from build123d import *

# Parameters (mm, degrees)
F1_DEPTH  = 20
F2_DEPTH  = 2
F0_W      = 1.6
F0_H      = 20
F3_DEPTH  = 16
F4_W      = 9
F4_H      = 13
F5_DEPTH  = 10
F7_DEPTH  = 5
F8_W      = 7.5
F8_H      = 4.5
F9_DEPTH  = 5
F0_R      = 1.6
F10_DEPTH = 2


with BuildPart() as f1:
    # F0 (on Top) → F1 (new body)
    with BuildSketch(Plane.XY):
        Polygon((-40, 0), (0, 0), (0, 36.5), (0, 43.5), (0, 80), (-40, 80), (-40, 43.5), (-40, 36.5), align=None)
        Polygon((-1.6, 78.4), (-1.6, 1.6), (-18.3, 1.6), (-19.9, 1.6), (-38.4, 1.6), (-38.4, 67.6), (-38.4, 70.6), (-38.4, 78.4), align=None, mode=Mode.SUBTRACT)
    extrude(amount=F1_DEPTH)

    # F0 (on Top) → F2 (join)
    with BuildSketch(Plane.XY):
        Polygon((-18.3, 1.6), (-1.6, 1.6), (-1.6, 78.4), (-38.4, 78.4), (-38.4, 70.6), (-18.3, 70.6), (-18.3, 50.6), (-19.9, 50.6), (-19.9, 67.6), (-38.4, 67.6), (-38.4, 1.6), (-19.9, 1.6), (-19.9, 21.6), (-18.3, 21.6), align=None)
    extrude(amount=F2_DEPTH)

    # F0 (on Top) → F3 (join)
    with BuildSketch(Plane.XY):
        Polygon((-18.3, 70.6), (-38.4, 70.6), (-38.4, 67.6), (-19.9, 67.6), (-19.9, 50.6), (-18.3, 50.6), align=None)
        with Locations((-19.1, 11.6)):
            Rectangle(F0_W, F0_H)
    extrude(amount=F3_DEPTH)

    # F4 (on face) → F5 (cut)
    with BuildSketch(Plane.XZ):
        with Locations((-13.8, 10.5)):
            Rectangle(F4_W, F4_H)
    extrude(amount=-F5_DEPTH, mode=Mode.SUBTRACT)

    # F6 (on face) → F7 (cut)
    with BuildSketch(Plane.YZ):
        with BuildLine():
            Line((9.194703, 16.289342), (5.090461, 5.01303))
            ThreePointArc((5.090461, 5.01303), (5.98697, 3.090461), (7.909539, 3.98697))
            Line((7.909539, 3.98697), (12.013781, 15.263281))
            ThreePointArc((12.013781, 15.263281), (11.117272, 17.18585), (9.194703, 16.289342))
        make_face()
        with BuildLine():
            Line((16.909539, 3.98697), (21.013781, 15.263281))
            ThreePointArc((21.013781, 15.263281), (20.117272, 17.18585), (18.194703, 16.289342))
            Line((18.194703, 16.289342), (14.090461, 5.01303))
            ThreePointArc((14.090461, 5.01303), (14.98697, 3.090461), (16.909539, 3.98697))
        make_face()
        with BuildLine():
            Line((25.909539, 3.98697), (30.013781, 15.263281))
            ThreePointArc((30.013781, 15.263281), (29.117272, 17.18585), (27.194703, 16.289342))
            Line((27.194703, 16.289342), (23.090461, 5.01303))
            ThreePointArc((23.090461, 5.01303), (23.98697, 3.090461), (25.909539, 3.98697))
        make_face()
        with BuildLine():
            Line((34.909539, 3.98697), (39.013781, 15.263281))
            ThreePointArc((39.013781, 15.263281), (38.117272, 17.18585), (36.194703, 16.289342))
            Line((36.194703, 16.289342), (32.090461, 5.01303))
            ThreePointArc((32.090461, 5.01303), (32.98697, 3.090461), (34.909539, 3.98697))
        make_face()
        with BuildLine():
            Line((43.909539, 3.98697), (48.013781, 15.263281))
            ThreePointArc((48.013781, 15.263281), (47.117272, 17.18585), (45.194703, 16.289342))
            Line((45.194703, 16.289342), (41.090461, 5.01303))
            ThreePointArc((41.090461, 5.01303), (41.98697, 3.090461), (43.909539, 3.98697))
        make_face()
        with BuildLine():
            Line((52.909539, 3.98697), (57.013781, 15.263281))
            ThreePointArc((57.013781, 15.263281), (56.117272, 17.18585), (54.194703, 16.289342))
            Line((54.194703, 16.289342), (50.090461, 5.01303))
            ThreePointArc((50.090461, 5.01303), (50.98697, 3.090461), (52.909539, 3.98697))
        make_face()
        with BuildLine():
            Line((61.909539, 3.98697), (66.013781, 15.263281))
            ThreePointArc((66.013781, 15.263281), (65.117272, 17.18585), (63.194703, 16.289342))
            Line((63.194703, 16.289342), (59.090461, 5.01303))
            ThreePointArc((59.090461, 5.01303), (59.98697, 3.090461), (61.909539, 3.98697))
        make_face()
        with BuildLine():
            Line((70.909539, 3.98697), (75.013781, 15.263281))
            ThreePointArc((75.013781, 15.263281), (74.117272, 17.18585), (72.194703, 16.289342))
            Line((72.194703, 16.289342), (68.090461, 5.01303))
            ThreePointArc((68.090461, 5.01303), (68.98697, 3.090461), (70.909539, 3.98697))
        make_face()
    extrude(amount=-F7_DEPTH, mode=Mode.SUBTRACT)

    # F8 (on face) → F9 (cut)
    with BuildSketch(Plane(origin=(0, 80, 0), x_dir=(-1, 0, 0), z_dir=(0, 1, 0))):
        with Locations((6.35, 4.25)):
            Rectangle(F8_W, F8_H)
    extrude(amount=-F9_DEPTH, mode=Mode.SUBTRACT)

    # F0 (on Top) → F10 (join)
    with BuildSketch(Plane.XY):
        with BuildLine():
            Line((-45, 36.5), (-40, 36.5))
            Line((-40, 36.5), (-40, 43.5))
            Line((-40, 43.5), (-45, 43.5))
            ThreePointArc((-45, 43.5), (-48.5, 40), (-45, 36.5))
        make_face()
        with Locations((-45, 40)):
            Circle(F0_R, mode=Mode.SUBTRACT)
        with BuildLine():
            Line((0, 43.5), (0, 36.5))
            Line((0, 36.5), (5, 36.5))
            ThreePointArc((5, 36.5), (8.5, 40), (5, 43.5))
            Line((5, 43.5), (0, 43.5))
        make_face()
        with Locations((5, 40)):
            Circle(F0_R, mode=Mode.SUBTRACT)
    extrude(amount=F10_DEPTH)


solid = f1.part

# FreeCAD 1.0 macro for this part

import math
import FreeCAD as App
import Part
import Sketcher
Q = App.Units.Quantity


def add_polygon(sketch, points):
    """Adds a closed chain of lines whose ends are joined by coincident constraints."""
    first, n = sketch.GeometryCount, len(points)
    for a, b in zip(points, points[1:] + points[:1]):
        sketch.addGeometry(Part.LineSegment(App.Vector(*a, 0), App.Vector(*b, 0)), False)
    for i in range(n):
        sketch.addConstraint(Sketcher.Constraint("Coincident", first + i, 2, first + (i + 1) % n, 1))

doc = App.newDocument("Part")
params = doc.addObject("Spreadsheet::Sheet", "Params")
for row, (alias, value) in enumerate([
    ("sketch1_width", "40 mm"),
    ("sketch1_height", "80 mm"),
    ("sketch1_width2", "36.8 mm"),
    ("sketch1_height2", "76.8 mm"),
    ("pad1_length", "20 mm"),
    ("sketch2_height", "20 mm"),
    ("sketch2_height2", "17 mm"),
    ("sketch2_height3", "66 mm"),
    ("sketch2_width", "16.7 mm"),
    ("sketch2_width2", "36.8 mm"),
    ("pad2_length", "2 mm"),
    ("sketch3_height", "3 mm"),
    ("sketch3_height2", "17 mm"),
    ("sketch3_width", "20.1 mm"),
    ("sketch3_width2", "18.5 mm"),
    ("pad3_length", "16 mm"),
    ("sketch4_width", "9 mm"),
    ("sketch4_height", "13 mm"),
    ("pocket1_length", "10 mm"),
    ("sketch5_radius", "1.5 mm"),
    ("sketch5_length", "12.000001 mm"),
    ("pocket2_length", "5 mm"),
    ("sketch6_width", "7.5 mm"),
    ("sketch6_height", "4.5 mm"),
    ("pocket3_length", "5 mm"),
    ("sketch7_diameter", "3.2 mm"),
    ("sketch7_radius", "3.5 mm"),
    ("sketch7_width", "5 mm"),
    ("pad4_length", "2 mm"),
], start=1):
    params.set(f"A{row}", alias)
    params.set(f"B{row}", "=" + value)
    params.setAlias(f"B{row}", alias)

body = doc.addObject("PartDesign::Body", "Body")

# Sketch on XY plane
sketch1 = body.newObject("Sketcher::SketchObject", "Sketch")
sketch1.AttachmentSupport = (doc.getObject("XY_Plane"), [""])
sketch1.MapMode = "FlatFace"
add_polygon(sketch1, [(-40, 0), (0, 0), (0, 80), (-40, 80)])  # lines 0-3
add_polygon(sketch1, [(-38.4, 78.4), (-1.6, 78.4), (-1.6, 1.6), (-38.4, 1.6)])  # lines 4-7
sketch1.addConstraint([
    Sketcher.Constraint("Horizontal", 0),
    Sketcher.Constraint("Vertical", 1),
    Sketcher.Constraint("Horizontal", 2),
    Sketcher.Constraint("Vertical", 3),
    Sketcher.Constraint("Horizontal", 4),
    Sketcher.Constraint("Vertical", 5),
    Sketcher.Constraint("Horizontal", 6),
    Sketcher.Constraint("Vertical", 7),
    Sketcher.Constraint("Coincident", 0, 2, -1, 1),
    Sketcher.Constraint("DistanceX", 0, 1, 0, 2, 40.0),
    Sketcher.Constraint("DistanceY", 1, 1, 1, 2, 80.0),
    Sketcher.Constraint("DistanceX", 4, 1, 4, 2, 36.8),
    Sketcher.Constraint("DistanceY", 5, 2, 5, 1, 76.8),
    Sketcher.Constraint("DistanceX", 4, 2, -1, 1, 1.6),
    Sketcher.Constraint("DistanceY", -1, 1, 4, 2, 78.4),
])
sketch1.setExpression("Constraints[17]", "Params.sketch1_width")
sketch1.setExpression("Constraints[18]", "Params.sketch1_height")
sketch1.setExpression("Constraints[19]", "Params.sketch1_width2")
sketch1.setExpression("Constraints[20]", "Params.sketch1_height2")
pad1 = body.newObject("PartDesign::Pad", "Pad")
pad1.Profile = sketch1
pad1.setExpression("Length", "Params.pad1_length")

# Sketch on XY plane
sketch2 = body.newObject("Sketcher::SketchObject", "Sketch001")
sketch2.AttachmentSupport = (doc.getObject("XY_Plane"), [""])
sketch2.MapMode = "FlatFace"
add_polygon(sketch2, [(-18.3, 1.6), (-1.6, 1.6), (-1.6, 78.4), (-38.4, 78.4), (-38.4, 70.6), (-18.3, 70.6), (-18.3, 50.6), (-19.9, 50.6), (-19.9, 67.6), (-38.4, 67.6), (-38.4, 1.6), (-19.9, 1.6), (-19.9, 21.6), (-18.3, 21.6)])  # lines 0-13
sketch2.addConstraint([
    Sketcher.Constraint("Horizontal", 0),
    Sketcher.Constraint("Vertical", 1),
    Sketcher.Constraint("Horizontal", 2),
    Sketcher.Constraint("Vertical", 3),
    Sketcher.Constraint("Horizontal", 4),
    Sketcher.Constraint("Vertical", 5),
    Sketcher.Constraint("Horizontal", 6),
    Sketcher.Constraint("Vertical", 7),
    Sketcher.Constraint("Horizontal", 8),
    Sketcher.Constraint("Vertical", 9),
    Sketcher.Constraint("Horizontal", 10),
    Sketcher.Constraint("Vertical", 11),
    Sketcher.Constraint("Horizontal", 12),
    Sketcher.Constraint("Vertical", 13),
    Sketcher.Constraint("Horizontal", 0, 2, 9, 2),
    Sketcher.Constraint("Vertical", 3, 2, 8, 2),
    Sketcher.Constraint("Vertical", 7, 2, 10, 2),
    Sketcher.Constraint("Vertical", 5, 2, 12, 2),
    Sketcher.Constraint("Equal", 5, 11),
    Sketcher.Constraint("DistanceY", 5, 2, 5, 1, 20.0),
    Sketcher.Constraint("DistanceY", 7, 1, 7, 2, 17.0),
    Sketcher.Constraint("DistanceY", 9, 2, 9, 1, 66.0),
    Sketcher.Constraint("DistanceX", 0, 1, 0, 2, 16.7),
    Sketcher.Constraint("DistanceX", 2, 2, 2, 1, 36.8),
    Sketcher.Constraint("DistanceX", 6, 2, 6, 1, 1.6),
    Sketcher.Constraint("DistanceY", 1, 1, 1, 2, 76.8),
    Sketcher.Constraint("DistanceX", 0, 2, -1, 1, 1.6),
    Sketcher.Constraint("DistanceY", -1, 1, 0, 2, 1.6),
])
sketch2.setExpression("Constraints[33]", "Params.sketch2_height")
sketch2.setExpression("Constraints[34]", "Params.sketch2_height2")
sketch2.setExpression("Constraints[35]", "Params.sketch2_height3")
sketch2.setExpression("Constraints[36]", "Params.sketch2_width")
sketch2.setExpression("Constraints[37]", "Params.sketch2_width2")
pad2 = body.newObject("PartDesign::Pad", "Pad001")
pad2.Profile = sketch2
pad2.setExpression("Length", "Params.pad2_length")

# Sketch on XY plane
sketch3 = body.newObject("Sketcher::SketchObject", "Sketch002")
sketch3.AttachmentSupport = (doc.getObject("XY_Plane"), [""])
sketch3.MapMode = "FlatFace"
add_polygon(sketch3, [(-18.3, 70.6), (-38.4, 70.6), (-38.4, 67.6), (-19.9, 67.6), (-19.9, 50.6), (-18.3, 50.6)])  # lines 0-5
add_polygon(sketch3, [(-19.9, 21.6), (-19.9, 1.6), (-18.3, 1.6), (-18.3, 21.6)])  # lines 6-9
sketch3.addConstraint([
    Sketcher.Constraint("Horizontal", 0),
    Sketcher.Constraint("Vertical", 1),
    Sketcher.Constraint("Horizontal", 2),
    Sketcher.Constraint("Vertical", 3),
    Sketcher.Constraint("Horizontal", 4),
    Sketcher.Constraint("Vertical", 5),
    Sketcher.Constraint("Vertical", 6),
    Sketcher.Constraint("Horizontal", 7),
    Sketcher.Constraint("Vertical", 8),
    Sketcher.Constraint("Horizontal", 9),
    Sketcher.Constraint("Vertical", 3, 2, 6, 2),
    Sketcher.Constraint("Vertical", 5, 2, 7, 2),
    Sketcher.Constraint("Equal", 5, 6),
    Sketcher.Constraint("DistanceY", 1, 2, 1, 1, 3.0),
    Sketcher.Constraint("DistanceY", 3, 2, 3, 1, 17.0),
    Sketcher.Constraint("DistanceX", 0, 2, 0, 1, 20.1),
    Sketcher.Constraint("DistanceX", 2, 1, 2, 2, 18.5),
    Sketcher.Constraint("DistanceY", 6, 2, 3, 2, 49.0),
    Sketcher.Constraint("DistanceX", 0, 2, -1, 1, 38.4),
    Sketcher.Constraint("DistanceY", -1, 1, 0, 2, 70.6),
])
sketch3.setExpression("Constraints[23]", "Params.sketch3_height")
sketch3.setExpression("Constraints[24]", "Params.sketch3_height2")
sketch3.setExpression("Constraints[25]", "Params.sketch3_width")
sketch3.setExpression("Constraints[26]", "Params.sketch3_width2")
pad3 = body.newObject("PartDesign::Pad", "Pad002")
pad3.Profile = sketch3
pad3.setExpression("Length", "Params.pad3_length")

# Sketch on XZ plane
sketch4 = body.newObject("Sketcher::SketchObject", "Sketch003")
sketch4.AttachmentSupport = (doc.getObject("XZ_Plane"), [""])
sketch4.MapMode = "FlatFace"
add_polygon(sketch4, [(-18.3, 17), (-18.3, 4), (-9.3, 4), (-9.3, 17)])  # lines 0-3
sketch4.addConstraint([
    Sketcher.Constraint("Vertical", 0),
    Sketcher.Constraint("Horizontal", 1),
    Sketcher.Constraint("Vertical", 2),
    Sketcher.Constraint("Horizontal", 3),
    Sketcher.Constraint("DistanceX", 1, 1, 1, 2, 9.0),
    Sketcher.Constraint("DistanceY", 0, 2, 0, 1, 13.0),
    Sketcher.Constraint("DistanceY", -1, 1, 0, 2, 4.0),
    Sketcher.Constraint("DistanceX", 0, 2, -1, 1, 18.3),
])
sketch4.setExpression("Constraints[8]", "Params.sketch4_width")
sketch4.setExpression("Constraints[9]", "Params.sketch4_height")
pocket1 = body.newObject("PartDesign::Pocket", "Pocket")
pocket1.Profile = sketch4
pocket1.setExpression("Length", "Params.pocket1_length")

# Sketch on YZ plane
sketch5 = body.newObject("Sketcher::SketchObject", "Sketch004")
sketch5.AttachmentSupport = (doc.getObject("YZ_Plane"), [""])
sketch5.MapMode = "FlatFace"
sketch5.addGeometry([
    Part.LineSegment(App.Vector(9.194703, 16.289342, 0), App.Vector(5.090461, 5.01303, 0)),  # 0
    Part.ArcOfCircle(Part.Circle(App.Vector(6.5, 4.5, 0), App.Vector(0, 0, 1), 1.5), math.radians(160.000009), math.radians(340.000009)),  # 1
    Part.LineSegment(App.Vector(7.909539, 3.98697, 0), App.Vector(12.013781, 15.263281, 0)),  # 2
    Part.ArcOfCircle(Part.Circle(App.Vector(10.604242, 15.776311, 0), App.Vector(0, 0, 1), 1.5), math.radians(-19.999985), math.radians(159.999966)),  # 3
    Part.LineSegment(App.Vector(16.909539, 3.98697, 0), App.Vector(21.013781, 15.263281, 0)),  # 4
    Part.ArcOfCircle(Part.Circle(App.Vector(19.604242, 15.776311, 0), App.Vector(0, 0, 1), 1.5), math.radians(-19.999985), math.radians(159.999966)),  # 5
    Part.LineSegment(App.Vector(18.194703, 16.289342, 0), App.Vector(14.090461, 5.01303, 0)),  # 6
    Part.ArcOfCircle(Part.Circle(App.Vector(15.5, 4.5, 0), App.Vector(0, 0, 1), 1.5), math.radians(160.000009), math.radians(340.000009)),  # 7
    Part.LineSegment(App.Vector(25.909539, 3.98697, 0), App.Vector(30.013781, 15.263281, 0)),  # 8
    Part.ArcOfCircle(Part.Circle(App.Vector(28.604242, 15.776311, 0), App.Vector(0, 0, 1), 1.5), math.radians(-19.999985), math.radians(159.999966)),  # 9
    Part.LineSegment(App.Vector(27.194703, 16.289342, 0), App.Vector(23.090461, 5.01303, 0)),  # 10
    Part.ArcOfCircle(Part.Circle(App.Vector(24.5, 4.5, 0), App.Vector(0, 0, 1), 1.5), math.radians(160.000009), math.radians(340.000009)),  # 11
    Part.LineSegment(App.Vector(34.909539, 3.98697, 0), App.Vector(39.013781, 15.263281, 0)),  # 12
    Part.ArcOfCircle(Part.Circle(App.Vector(37.604242, 15.776311, 0), App.Vector(0, 0, 1), 1.5), math.radians(-19.999985), math.radians(159.999966)),  # 13
    Part.LineSegment(App.Vector(36.194703, 16.289342, 0), App.Vector(32.090461, 5.01303, 0)),  # 14
    Part.ArcOfCircle(Part.Circle(App.Vector(33.5, 4.5, 0), App.Vector(0, 0, 1), 1.5), math.radians(160.000009), math.radians(340.000009)),  # 15
    Part.LineSegment(App.Vector(43.909539, 3.98697, 0), App.Vector(48.013781, 15.263281, 0)),  # 16
    Part.ArcOfCircle(Part.Circle(App.Vector(46.604242, 15.776311, 0), App.Vector(0, 0, 1), 1.5), math.radians(-19.999985), math.radians(159.999966)),  # 17
    Part.LineSegment(App.Vector(45.194703, 16.289342, 0), App.Vector(41.090461, 5.01303, 0)),  # 18
    Part.ArcOfCircle(Part.Circle(App.Vector(42.5, 4.5, 0), App.Vector(0, 0, 1), 1.5), math.radians(160.000009), math.radians(340.000009)),  # 19
    Part.LineSegment(App.Vector(52.909539, 3.98697, 0), App.Vector(57.013781, 15.263281, 0)),  # 20
    Part.ArcOfCircle(Part.Circle(App.Vector(55.604242, 15.776311, 0), App.Vector(0, 0, 1), 1.5), math.radians(-19.999985), math.radians(159.999966)),  # 21
    Part.LineSegment(App.Vector(54.194703, 16.289342, 0), App.Vector(50.090461, 5.01303, 0)),  # 22
    Part.ArcOfCircle(Part.Circle(App.Vector(51.5, 4.5, 0), App.Vector(0, 0, 1), 1.5), math.radians(160.000009), math.radians(340.000009)),  # 23
    Part.LineSegment(App.Vector(61.909539, 3.98697, 0), App.Vector(66.013781, 15.263281, 0)),  # 24
    Part.ArcOfCircle(Part.Circle(App.Vector(64.604242, 15.776311, 0), App.Vector(0, 0, 1), 1.5), math.radians(-19.999985), math.radians(159.999966)),  # 25
    Part.LineSegment(App.Vector(63.194703, 16.289342, 0), App.Vector(59.090461, 5.01303, 0)),  # 26
    Part.ArcOfCircle(Part.Circle(App.Vector(60.5, 4.5, 0), App.Vector(0, 0, 1), 1.5), math.radians(160.000009), math.radians(340.000009)),  # 27
    Part.LineSegment(App.Vector(70.909539, 3.98697, 0), App.Vector(75.013781, 15.263281, 0)),  # 28
    Part.ArcOfCircle(Part.Circle(App.Vector(73.604242, 15.776311, 0), App.Vector(0, 0, 1), 1.5), math.radians(-19.999985), math.radians(159.999966)),  # 29
    Part.LineSegment(App.Vector(72.194703, 16.289342, 0), App.Vector(68.090461, 5.01303, 0)),  # 30
    Part.ArcOfCircle(Part.Circle(App.Vector(69.5, 4.5, 0), App.Vector(0, 0, 1), 1.5), math.radians(160.000009), math.radians(340.000009)),  # 31
], False)
sketch5.addConstraint([
    Sketcher.Constraint("Tangent", 0, 2, 1, 1),
    Sketcher.Constraint("Tangent", 1, 2, 2, 1),
    Sketcher.Constraint("Tangent", 2, 2, 3, 1),
    Sketcher.Constraint("Tangent", 3, 2, 0, 1),
    Sketcher.Constraint("Tangent", 4, 2, 5, 1),
    Sketcher.Constraint("Tangent", 5, 2, 6, 1),
    Sketcher.Constraint("Tangent", 6, 2, 7, 1),
    Sketcher.Constraint("Tangent", 7, 2, 4, 1),
    Sketcher.Constraint("Tangent", 8, 2, 9, 1),
    Sketcher.Constraint("Tangent", 9, 2, 10, 1),
    Sketcher.Constraint("Tangent", 10, 2, 11, 1),
    Sketcher.Constraint("Tangent", 11, 2, 8, 1),
    Sketcher.Constraint("Tangent", 12, 2, 13, 1),
    Sketcher.Constraint("Tangent", 13, 2, 14, 1),
    Sketcher.Constraint("Tangent", 14, 2, 15, 1),
    Sketcher.Constraint("Tangent", 15, 2, 12, 1),
    Sketcher.Constraint("Tangent", 16, 2, 17, 1),
    Sketcher.Constraint("Tangent", 17, 2, 18, 1),
    Sketcher.Constraint("Tangent", 18, 2, 19, 1),
    Sketcher.Constraint("Tangent", 19, 2, 16, 1),
    Sketcher.Constraint("Tangent", 20, 2, 21, 1),
    Sketcher.Constraint("Tangent", 21, 2, 22, 1),
    Sketcher.Constraint("Tangent", 22, 2, 23, 1),
    Sketcher.Constraint("Tangent", 23, 2, 20, 1),
    Sketcher.Constraint("Tangent", 24, 2, 25, 1),
    Sketcher.Constraint("Tangent", 25, 2, 26, 1),
    Sketcher.Constraint("Tangent", 26, 2, 27, 1),
    Sketcher.Constraint("Tangent", 27, 2, 24, 1),
    Sketcher.Constraint("Tangent", 28, 2, 29, 1),
    Sketcher.Constraint("Tangent", 29, 2, 30, 1),
    Sketcher.Constraint("Tangent", 30, 2, 31, 1),
    Sketcher.Constraint("Tangent", 31, 2, 28, 1),
    Sketcher.Constraint("Equal", 1, 3),
    Sketcher.Constraint("Equal", 3, 5),
    Sketcher.Constraint("Equal", 5, 7),
    Sketcher.Constraint("Equal", 7, 9),
    Sketcher.Constraint("Equal", 9, 11),
    Sketcher.Constraint("Equal", 11, 13),
    Sketcher.Constraint("Equal", 13, 15),
    Sketcher.Constraint("Equal", 15, 17),
    Sketcher.Constraint("Equal", 17, 19),
    Sketcher.Constraint("Equal", 19, 21),
    Sketcher.Constraint("Equal", 21, 23),
    Sketcher.Constraint("Equal", 23, 25),
    Sketcher.Constraint("Equal", 25, 27),
    Sketcher.Constraint("Equal", 27, 29),
    Sketcher.Constraint("Equal", 29, 31),
    Sketcher.Constraint("Parallel", 2, 4),
    Sketcher.Constraint("Parallel", 6, 8),
    Sketcher.Constraint("Parallel", 10, 12),
    Sketcher.Constraint("Parallel", 14, 16),
    Sketcher.Constraint("Parallel", 18, 20),
    Sketcher.Constraint("Parallel", 22, 24),
    Sketcher.Constraint("Parallel", 26, 28),
    Sketcher.Constraint("Horizontal", 3, 3, 5, 3),
    Sketcher.Constraint("Horizontal", 1, 3, 7, 3),
    Sketcher.Constraint("Horizontal", 5, 3, 9, 3),
    Sketcher.Constraint("Horizontal", 7, 3, 11, 3),
    Sketcher.Constraint("Horizontal", 9, 3, 13, 3),
    Sketcher.Constraint("Horizontal", 11, 3, 15, 3),
    Sketcher.Constraint("Horizontal", 13, 3, 17, 3),
    Sketcher.Constraint("Horizontal", 15, 3, 19, 3),
    Sketcher.Constraint("Horizontal", 17, 3, 21, 3),
    Sketcher.Constraint("Horizontal", 19, 3, 23, 3),
    Sketcher.Constraint("Horizontal", 21, 3, 25, 3),
    Sketcher.Constraint("Horizontal", 23, 3, 27, 3),
    Sketcher.Constraint("Horizontal", 25, 3, 29, 3),
    Sketcher.Constraint("Horizontal", 27, 3, 31, 3),
    Sketcher.Constraint("Radius", 1, 1.5),
    Sketcher.Constraint("Angle", 0, Q("-110 deg")),
    Sketcher.Constraint("Distance", 0, 12.000001),
    Sketcher.Constraint("DistanceX", 3, 3, 5, 3, 9.0),
    Sketcher.Constraint("DistanceX", 5, 3, 9, 3, 9.0),
    Sketcher.Constraint("DistanceX", 9, 3, 13, 3, 9.0),
    Sketcher.Constraint("DistanceX", 13, 3, 17, 3, 9.0),
    Sketcher.Constraint("DistanceX", 17, 3, 21, 3, 9.0),
    Sketcher.Constraint("DistanceX", 21, 3, 25, 3, 9.0),
    Sketcher.Constraint("DistanceX", 25, 3, 29, 3, 9.0),
    Sketcher.Constraint("DistanceX", -1, 1, 1, 3, 6.5),
    Sketcher.Constraint("DistanceY", -1, 1, 1, 3, 4.5),
])
sketch5.setExpression("Constraints[68]", "Params.sketch5_radius")
sketch5.setExpression("Constraints[70]", "Params.sketch5_length")
pocket2 = body.newObject("PartDesign::Pocket", "Pocket001")
pocket2.Profile = sketch5
pocket2.setExpression("Length", "Params.pocket2_length")

# Sketch on XZ plane
sketch6 = body.newObject("Sketcher::SketchObject", "Sketch005")
sketch6.AttachmentSupport = (doc.getObject("XZ_Plane"), [""])
sketch6.MapMode = "FlatFace"
sketch6.AttachmentOffset = App.Placement(App.Vector(0, 0, -80), App.Rotation())
add_polygon(sketch6, [(-2.6, 6.5), (-2.6, 2), (-10.1, 2), (-10.1, 6.5)])  # lines 0-3
sketch6.addConstraint([
    Sketcher.Constraint("Vertical", 0),
    Sketcher.Constraint("Horizontal", 1),
    Sketcher.Constraint("Vertical", 2),
    Sketcher.Constraint("Horizontal", 3),
    Sketcher.Constraint("DistanceX", 1, 2, 1, 1, 7.5),
    Sketcher.Constraint("DistanceY", 0, 2, 0, 1, 4.5),
    Sketcher.Constraint("DistanceY", -1, 1, 0, 2, 2.0),
    Sketcher.Constraint("DistanceX", 0, 2, -1, 1, 2.6),
])
sketch6.setExpression("Constraints[8]", "Params.sketch6_width")
sketch6.setExpression("Constraints[9]", "Params.sketch6_height")
pocket3 = body.newObject("PartDesign::Pocket", "Pocket002")
pocket3.Profile = sketch6
pocket3.setExpression("Length", "Params.pocket3_length")
pocket3.Reversed = True

# Sketch on XY plane
sketch7 = body.newObject("Sketcher::SketchObject", "Sketch006")
sketch7.AttachmentSupport = (doc.getObject("XY_Plane"), [""])
sketch7.MapMode = "FlatFace"
sketch7.addGeometry([
    Part.LineSegment(App.Vector(-45, 36.5, 0), App.Vector(-40, 36.5, 0)),  # 0
    Part.LineSegment(App.Vector(-40, 36.5, 0), App.Vector(-40, 43.5, 0)),  # 1
    Part.LineSegment(App.Vector(-40, 43.5, 0), App.Vector(-45, 43.5, 0)),  # 2
    Part.ArcOfCircle(Part.Circle(App.Vector(-45, 40, 0), App.Vector(0, 0, 1), 3.5), math.radians(90), math.radians(270)),  # 3
    Part.Circle(App.Vector(-45, 40, 0), App.Vector(0, 0, 1), 1.6),  # 4
    Part.LineSegment(App.Vector(0, 43.5, 0), App.Vector(0, 36.5, 0)),  # 5
    Part.LineSegment(App.Vector(0, 36.5, 0), App.Vector(5, 36.5, 0)),  # 6
    Part.ArcOfCircle(Part.Circle(App.Vector(5, 40, 0), App.Vector(0, 0, 1), 3.5), math.radians(-90), math.radians(90)),  # 7
    Part.LineSegment(App.Vector(5, 43.5, 0), App.Vector(0, 43.5, 0)),  # 8
    Part.Circle(App.Vector(5, 40, 0), App.Vector(0, 0, 1), 1.6),  # 9
], False)
sketch7.addConstraint([
    Sketcher.Constraint("Coincident", 0, 2, 1, 1),
    Sketcher.Constraint("Coincident", 1, 2, 2, 1),
    Sketcher.Constraint("Tangent", 2, 2, 3, 1),
    Sketcher.Constraint("Tangent", 3, 2, 0, 1),
    Sketcher.Constraint("Coincident", 5, 2, 6, 1),
    Sketcher.Constraint("Tangent", 6, 2, 7, 1),
    Sketcher.Constraint("Tangent", 7, 2, 8, 1),
    Sketcher.Constraint("Coincident", 8, 2, 5, 1),
    Sketcher.Constraint("Horizontal", 0),
    Sketcher.Constraint("Vertical", 1),
    Sketcher.Constraint("Horizontal", 2),
    Sketcher.Constraint("Vertical", 5),
    Sketcher.Constraint("Horizontal", 6),
    Sketcher.Constraint("Horizontal", 8),
    Sketcher.Constraint("Coincident", 4, 3, 3, 3),
    Sketcher.Constraint("Coincident", 9, 3, 7, 3),
    Sketcher.Constraint("Equal", 3, 7),
    Sketcher.Constraint("Equal", 4, 9),
    Sketcher.Constraint("PointOnObject", 5, 2, -2),
    Sketcher.Constraint("Horizontal", 4, 3, 7, 3),
    Sketcher.Constraint("Equal", 2, 6),
    Sketcher.Constraint("Diameter", 4, 3.2),
    Sketcher.Constraint("Radius", 3, 3.5),
    Sketcher.Constraint("DistanceX", 0, 1, 0, 2, 5.0),
    Sketcher.Constraint("DistanceX", 3, 3, -1, 1, 45.0),
    Sketcher.Constraint("DistanceY", -1, 1, 3, 3, 40.0),
])
sketch7.setExpression("Constraints[21]", "Params.sketch7_diameter")
sketch7.setExpression("Constraints[22]", "Params.sketch7_radius")
sketch7.setExpression("Constraints[23]", "Params.sketch7_width")
pad4 = body.newObject("PartDesign::Pad", "Pad003")
pad4.Profile = sketch7
pad4.setExpression("Length", "Params.pad4_length")

doc.recompute()
